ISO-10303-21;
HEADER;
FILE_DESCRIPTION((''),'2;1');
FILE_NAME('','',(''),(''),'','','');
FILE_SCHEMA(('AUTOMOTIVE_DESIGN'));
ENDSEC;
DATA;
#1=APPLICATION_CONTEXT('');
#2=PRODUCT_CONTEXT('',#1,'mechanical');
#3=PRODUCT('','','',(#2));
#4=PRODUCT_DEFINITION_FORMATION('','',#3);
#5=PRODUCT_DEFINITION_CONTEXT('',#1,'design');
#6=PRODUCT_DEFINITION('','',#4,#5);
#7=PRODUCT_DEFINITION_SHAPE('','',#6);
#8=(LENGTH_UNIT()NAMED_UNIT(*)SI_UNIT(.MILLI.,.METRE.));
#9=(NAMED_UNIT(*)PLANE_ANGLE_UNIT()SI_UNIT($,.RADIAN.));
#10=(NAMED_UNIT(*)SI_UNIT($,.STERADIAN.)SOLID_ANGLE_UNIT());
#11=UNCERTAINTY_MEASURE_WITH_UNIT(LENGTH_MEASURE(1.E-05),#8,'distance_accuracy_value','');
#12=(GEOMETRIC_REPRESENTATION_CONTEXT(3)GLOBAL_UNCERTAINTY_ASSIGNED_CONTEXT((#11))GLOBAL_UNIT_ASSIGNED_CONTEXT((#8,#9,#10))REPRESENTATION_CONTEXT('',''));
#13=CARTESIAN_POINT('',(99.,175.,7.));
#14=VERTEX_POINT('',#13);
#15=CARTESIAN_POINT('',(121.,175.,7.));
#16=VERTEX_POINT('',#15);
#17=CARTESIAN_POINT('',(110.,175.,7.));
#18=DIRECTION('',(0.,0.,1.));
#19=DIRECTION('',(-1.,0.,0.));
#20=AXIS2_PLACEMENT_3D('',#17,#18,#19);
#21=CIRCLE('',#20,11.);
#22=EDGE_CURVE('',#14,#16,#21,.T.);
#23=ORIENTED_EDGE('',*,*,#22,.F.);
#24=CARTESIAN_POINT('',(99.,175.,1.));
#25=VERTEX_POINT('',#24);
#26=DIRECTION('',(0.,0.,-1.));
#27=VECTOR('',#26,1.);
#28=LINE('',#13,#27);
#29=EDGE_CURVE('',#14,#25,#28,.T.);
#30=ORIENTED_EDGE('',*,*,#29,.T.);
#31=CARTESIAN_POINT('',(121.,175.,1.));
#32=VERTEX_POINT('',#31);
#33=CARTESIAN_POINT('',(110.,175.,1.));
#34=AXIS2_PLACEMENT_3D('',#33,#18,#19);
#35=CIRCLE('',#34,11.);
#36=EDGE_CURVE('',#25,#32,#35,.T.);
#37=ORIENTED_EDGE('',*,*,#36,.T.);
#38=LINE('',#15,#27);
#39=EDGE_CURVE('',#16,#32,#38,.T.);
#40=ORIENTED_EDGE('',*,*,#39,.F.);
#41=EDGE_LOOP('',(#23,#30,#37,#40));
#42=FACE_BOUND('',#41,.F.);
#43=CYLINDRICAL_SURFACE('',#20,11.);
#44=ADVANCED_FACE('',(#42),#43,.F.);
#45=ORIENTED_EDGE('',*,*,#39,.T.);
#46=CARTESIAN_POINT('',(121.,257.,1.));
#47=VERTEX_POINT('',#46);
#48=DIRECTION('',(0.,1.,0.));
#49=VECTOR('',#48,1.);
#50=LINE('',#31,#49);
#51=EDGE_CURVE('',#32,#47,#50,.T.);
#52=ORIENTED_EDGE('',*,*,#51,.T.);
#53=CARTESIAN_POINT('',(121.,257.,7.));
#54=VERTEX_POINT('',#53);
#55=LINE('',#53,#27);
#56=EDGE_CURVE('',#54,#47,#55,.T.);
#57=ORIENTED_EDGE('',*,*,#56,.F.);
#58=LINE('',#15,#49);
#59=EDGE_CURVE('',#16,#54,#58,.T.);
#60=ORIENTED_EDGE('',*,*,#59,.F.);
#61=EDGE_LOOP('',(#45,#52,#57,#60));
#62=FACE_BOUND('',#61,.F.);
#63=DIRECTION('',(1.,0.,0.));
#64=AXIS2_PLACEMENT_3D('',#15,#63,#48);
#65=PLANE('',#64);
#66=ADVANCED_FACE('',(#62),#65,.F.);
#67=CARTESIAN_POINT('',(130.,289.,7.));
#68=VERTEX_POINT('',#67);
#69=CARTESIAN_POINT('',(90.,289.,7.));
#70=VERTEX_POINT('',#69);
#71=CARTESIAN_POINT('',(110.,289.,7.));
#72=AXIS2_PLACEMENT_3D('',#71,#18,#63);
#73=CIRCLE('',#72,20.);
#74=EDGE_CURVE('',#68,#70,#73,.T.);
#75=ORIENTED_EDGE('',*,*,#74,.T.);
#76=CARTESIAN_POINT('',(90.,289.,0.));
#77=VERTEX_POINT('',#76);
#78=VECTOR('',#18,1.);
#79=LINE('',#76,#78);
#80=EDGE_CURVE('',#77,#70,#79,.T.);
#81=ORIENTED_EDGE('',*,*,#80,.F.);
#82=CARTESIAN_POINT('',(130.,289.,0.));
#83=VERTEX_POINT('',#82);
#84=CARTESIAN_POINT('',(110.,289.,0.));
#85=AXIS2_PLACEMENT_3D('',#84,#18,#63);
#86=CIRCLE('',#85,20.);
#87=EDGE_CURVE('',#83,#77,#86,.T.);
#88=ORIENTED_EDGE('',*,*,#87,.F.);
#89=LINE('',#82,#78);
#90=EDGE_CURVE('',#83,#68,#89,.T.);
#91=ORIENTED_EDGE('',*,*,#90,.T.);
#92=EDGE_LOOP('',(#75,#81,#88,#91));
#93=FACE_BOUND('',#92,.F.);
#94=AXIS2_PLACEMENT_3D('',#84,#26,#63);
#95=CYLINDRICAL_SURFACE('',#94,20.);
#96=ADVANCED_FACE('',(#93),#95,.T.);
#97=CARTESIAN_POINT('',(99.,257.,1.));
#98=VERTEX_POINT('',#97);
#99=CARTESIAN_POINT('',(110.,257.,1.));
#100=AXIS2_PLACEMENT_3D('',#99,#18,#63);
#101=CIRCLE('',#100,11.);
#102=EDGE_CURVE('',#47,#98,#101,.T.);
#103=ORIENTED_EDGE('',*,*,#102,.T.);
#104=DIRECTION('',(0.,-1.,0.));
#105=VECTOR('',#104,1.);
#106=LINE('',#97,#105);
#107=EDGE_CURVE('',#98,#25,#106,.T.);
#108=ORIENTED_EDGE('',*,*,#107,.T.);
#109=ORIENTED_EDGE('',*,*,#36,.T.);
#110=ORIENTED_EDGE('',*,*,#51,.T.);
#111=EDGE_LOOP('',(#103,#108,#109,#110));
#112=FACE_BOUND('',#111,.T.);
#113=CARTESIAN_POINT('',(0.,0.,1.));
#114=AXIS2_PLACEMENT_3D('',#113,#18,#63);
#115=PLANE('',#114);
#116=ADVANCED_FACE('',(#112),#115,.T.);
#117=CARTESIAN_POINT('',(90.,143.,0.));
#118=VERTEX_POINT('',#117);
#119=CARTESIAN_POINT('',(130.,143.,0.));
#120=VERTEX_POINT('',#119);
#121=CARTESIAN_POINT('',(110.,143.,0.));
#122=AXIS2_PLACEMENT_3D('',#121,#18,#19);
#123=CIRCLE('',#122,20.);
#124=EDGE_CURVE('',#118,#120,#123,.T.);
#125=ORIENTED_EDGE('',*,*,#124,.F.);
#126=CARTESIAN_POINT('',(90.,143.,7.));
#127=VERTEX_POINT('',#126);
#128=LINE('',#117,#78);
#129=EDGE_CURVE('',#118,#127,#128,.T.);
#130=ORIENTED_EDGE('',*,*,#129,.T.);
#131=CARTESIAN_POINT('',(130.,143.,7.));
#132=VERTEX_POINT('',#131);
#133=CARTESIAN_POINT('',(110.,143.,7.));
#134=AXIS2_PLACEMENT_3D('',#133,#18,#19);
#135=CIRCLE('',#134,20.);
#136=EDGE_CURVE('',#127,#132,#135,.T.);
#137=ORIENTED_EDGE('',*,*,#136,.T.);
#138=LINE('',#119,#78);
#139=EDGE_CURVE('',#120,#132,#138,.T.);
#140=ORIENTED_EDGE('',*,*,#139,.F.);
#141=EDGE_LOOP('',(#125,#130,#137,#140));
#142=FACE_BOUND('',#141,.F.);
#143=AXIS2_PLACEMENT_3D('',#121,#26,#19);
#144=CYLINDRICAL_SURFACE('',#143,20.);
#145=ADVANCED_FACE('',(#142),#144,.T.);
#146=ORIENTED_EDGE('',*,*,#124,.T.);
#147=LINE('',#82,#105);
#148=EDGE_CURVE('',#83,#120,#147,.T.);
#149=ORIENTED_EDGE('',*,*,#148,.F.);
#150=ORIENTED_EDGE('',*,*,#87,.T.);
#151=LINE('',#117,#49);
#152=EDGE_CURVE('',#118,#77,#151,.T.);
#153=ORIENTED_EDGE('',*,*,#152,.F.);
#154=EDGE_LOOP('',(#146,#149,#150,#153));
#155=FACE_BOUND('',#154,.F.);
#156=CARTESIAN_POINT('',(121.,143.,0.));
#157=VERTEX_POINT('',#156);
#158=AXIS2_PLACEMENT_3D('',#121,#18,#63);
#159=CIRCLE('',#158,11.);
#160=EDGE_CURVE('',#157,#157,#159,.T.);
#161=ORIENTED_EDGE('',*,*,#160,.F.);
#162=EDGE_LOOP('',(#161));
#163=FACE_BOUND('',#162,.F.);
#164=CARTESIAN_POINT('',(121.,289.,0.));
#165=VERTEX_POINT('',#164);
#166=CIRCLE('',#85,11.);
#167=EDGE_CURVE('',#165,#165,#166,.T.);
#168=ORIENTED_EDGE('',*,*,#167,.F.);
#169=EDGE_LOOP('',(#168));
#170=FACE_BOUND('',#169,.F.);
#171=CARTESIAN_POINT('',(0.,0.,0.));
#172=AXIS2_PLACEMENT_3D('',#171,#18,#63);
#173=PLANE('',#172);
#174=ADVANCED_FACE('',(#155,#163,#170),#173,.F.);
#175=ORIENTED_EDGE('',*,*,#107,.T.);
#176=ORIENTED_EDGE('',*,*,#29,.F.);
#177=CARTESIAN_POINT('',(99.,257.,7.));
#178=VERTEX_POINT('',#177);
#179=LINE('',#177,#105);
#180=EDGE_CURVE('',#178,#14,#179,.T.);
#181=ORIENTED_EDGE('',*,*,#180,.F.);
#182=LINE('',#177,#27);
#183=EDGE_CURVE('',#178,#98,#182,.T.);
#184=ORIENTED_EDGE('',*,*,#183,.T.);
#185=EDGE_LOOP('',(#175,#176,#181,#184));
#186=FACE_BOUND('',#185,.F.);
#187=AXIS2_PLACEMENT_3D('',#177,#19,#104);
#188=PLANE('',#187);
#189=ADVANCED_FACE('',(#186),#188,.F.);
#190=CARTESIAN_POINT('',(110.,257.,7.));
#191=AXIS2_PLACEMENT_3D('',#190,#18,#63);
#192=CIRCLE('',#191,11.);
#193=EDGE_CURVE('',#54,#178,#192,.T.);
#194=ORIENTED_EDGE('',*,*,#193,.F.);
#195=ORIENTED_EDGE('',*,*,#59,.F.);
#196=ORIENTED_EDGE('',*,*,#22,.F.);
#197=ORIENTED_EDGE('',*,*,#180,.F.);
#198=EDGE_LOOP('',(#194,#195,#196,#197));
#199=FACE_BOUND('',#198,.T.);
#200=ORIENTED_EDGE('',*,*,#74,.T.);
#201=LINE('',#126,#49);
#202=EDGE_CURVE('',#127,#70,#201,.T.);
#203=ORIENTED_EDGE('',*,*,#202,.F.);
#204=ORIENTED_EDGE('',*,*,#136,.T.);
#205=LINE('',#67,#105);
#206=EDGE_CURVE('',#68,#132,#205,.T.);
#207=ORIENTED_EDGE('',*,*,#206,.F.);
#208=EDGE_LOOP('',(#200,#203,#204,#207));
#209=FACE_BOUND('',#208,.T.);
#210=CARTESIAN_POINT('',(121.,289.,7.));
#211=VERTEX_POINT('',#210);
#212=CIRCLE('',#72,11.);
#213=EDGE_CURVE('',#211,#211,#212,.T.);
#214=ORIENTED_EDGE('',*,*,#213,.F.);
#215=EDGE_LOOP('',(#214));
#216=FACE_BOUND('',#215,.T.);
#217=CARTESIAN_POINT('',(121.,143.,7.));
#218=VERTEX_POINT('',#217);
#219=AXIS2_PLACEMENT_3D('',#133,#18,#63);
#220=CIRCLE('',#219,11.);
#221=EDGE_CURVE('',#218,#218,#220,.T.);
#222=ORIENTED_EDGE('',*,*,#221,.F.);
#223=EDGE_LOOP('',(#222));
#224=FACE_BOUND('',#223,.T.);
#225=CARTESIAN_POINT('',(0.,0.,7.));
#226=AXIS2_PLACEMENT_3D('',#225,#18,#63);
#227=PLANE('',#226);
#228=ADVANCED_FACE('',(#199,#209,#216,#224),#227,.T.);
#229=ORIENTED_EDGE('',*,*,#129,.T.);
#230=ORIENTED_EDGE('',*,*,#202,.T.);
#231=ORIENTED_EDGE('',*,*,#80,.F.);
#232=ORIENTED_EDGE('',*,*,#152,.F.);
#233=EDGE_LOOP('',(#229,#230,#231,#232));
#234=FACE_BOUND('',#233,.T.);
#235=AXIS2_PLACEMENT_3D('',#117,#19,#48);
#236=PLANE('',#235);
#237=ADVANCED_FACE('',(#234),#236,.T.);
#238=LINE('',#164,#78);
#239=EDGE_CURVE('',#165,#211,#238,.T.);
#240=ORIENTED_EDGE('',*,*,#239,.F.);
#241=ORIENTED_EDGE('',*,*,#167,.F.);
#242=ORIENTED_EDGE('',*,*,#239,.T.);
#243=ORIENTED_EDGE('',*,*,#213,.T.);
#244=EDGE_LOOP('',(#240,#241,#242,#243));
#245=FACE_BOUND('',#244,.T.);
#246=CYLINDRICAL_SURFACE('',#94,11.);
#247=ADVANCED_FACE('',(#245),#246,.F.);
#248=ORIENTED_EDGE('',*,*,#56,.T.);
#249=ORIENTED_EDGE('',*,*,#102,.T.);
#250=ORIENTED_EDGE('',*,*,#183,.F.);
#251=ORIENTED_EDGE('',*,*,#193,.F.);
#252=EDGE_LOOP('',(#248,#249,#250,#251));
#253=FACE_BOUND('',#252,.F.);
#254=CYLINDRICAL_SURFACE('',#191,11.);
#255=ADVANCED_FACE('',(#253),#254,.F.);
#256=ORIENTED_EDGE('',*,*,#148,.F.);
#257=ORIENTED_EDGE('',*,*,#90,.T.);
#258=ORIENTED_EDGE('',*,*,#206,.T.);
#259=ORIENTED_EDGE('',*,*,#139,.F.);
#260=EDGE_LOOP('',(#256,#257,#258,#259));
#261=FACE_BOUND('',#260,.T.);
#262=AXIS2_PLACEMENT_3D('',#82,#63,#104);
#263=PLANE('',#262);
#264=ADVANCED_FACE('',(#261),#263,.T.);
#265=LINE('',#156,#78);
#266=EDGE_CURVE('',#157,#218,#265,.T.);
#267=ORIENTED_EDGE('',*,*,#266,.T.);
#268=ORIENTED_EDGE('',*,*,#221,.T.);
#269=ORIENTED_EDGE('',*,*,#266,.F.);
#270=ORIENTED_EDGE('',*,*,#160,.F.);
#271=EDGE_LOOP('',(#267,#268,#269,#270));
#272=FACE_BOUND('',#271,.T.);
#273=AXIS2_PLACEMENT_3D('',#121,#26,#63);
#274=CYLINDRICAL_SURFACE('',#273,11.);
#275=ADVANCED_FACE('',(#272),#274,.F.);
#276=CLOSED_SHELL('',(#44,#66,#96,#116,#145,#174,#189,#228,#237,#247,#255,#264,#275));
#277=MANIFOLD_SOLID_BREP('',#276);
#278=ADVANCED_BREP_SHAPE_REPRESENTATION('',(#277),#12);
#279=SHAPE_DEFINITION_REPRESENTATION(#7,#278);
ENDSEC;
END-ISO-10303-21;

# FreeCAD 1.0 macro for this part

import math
import FreeCAD as App
import Part
import Sketcher
from FreeCAD import Vector

doc = App.newDocument("Part")
params = doc.addObject("Spreadsheet::Sheet", "Params")
for row, (alias, value) in enumerate([
    ("sketch1_diameter", "22 mm"),
    ("sketch1_radius", "20 mm"),
    ("sketch1_height", "146 mm"),
    ("pad1_length", "7 mm"),
    ("sketch2_diameter", "22 mm"),
    ("sketch2_height", "82 mm"),
    ("pocket1_length", "6 mm"),
], start=1):
    params.set(f"A{row}", alias)
    params.set(f"B{row}", "=" + value)
    params.setAlias(f"B{row}", alias)

body = doc.addObject("PartDesign::Body", "Body")

sketch1 = body.newObject("Sketcher::SketchObject", "Sketch")
sketch1.AttachmentSupport = (doc.getObject("XY_Plane"), [""])
sketch1.MapMode = "FlatFace"
sketch1.addGeometry(Part.LineSegment(Vector(130, 143, 0), Vector(130, 289, 0)), False)
sketch1.addGeometry(Part.ArcOfCircle(Part.Circle(Vector(110, 289, 0), Vector(0, 0, 1), 20), math.radians(0), math.radians(180)), False)
sketch1.addGeometry(Part.LineSegment(Vector(90, 289, 0), Vector(90, 143, 0)), False)
sketch1.addGeometry(Part.ArcOfCircle(Part.Circle(Vector(110, 143, 0), Vector(0, 0, 1), 20), math.radians(180), math.radians(360)), False)
sketch1.addGeometry(Part.Circle(Vector(110, 143, 0), Vector(0, 0, 1), 11), False)
sketch1.addGeometry(Part.Circle(Vector(110, 289, 0), Vector(0, 0, 1), 11), False)
sketch1.addConstraint(Sketcher.Constraint("Tangent", 0, 2, 1, 1))
sketch1.addConstraint(Sketcher.Constraint("Tangent", 1, 2, 2, 1))
sketch1.addConstraint(Sketcher.Constraint("Tangent", 2, 2, 3, 1))
sketch1.addConstraint(Sketcher.Constraint("Tangent", 3, 2, 0, 1))
sketch1.addConstraint(Sketcher.Constraint("Vertical", 0))
sketch1.addConstraint(Sketcher.Constraint("Vertical", 2))
sketch1.addConstraint(Sketcher.Constraint("Coincident", 4, 3, 3, 3))
sketch1.addConstraint(Sketcher.Constraint("Coincident", 5, 3, 1, 3))
sketch1.addConstraint(Sketcher.Constraint("Equal", 4, 5))
sketch1.addConstraint(Sketcher.Constraint("Diameter", 4, 22.0))
sketch1.addConstraint(Sketcher.Constraint("Radius", 1, 20.0))
sketch1.addConstraint(Sketcher.Constraint("DistanceY", 0, 1, 0, 2, 146.0))
sketch1.addConstraint(Sketcher.Constraint("DistanceX", -1, 1, 1, 3, 110.0))
sketch1.addConstraint(Sketcher.Constraint("DistanceY", -1, 1, 1, 3, 289.0))
sketch1.setExpression("Constraints[9]", "Params.sketch1_diameter")
sketch1.setExpression("Constraints[10]", "Params.sketch1_radius")
sketch1.setExpression("Constraints[11]", "Params.sketch1_height")
pad1 = body.newObject("PartDesign::Pad", "Pad")
pad1.Profile = sketch1
pad1.setExpression("Length", "Params.pad1_length")

sketch2 = body.newObject("Sketcher::SketchObject", "Sketch001")
sketch2.AttachmentSupport = (doc.getObject("XY_Plane"), [""])
sketch2.MapMode = "FlatFace"
sketch2.AttachmentOffset = App.Placement(Vector(0, 0, 7), App.Rotation())
sketch2.addGeometry(Part.ArcOfCircle(Part.Circle(Vector(110, 175, 0), Vector(0, 0, 1), 11), math.radians(180), math.radians(360)), False)
sketch2.addGeometry(Part.LineSegment(Vector(121, 175, 0), Vector(121, 257, 0)), False)
sketch2.addGeometry(Part.ArcOfCircle(Part.Circle(Vector(110, 257, 0), Vector(0, 0, 1), 11), math.radians(0), math.radians(180)), False)
sketch2.addGeometry(Part.LineSegment(Vector(99, 257, 0), Vector(99, 175, 0)), False)
sketch2.addGeometry(Part.Circle(Vector(110, 289, 0), Vector(0, 0, 1), 11), False)
sketch2.addGeometry(Part.Circle(Vector(110, 143, 0), Vector(0, 0, 1), 11), False)
sketch2.addConstraint(Sketcher.Constraint("Tangent", 0, 2, 1, 1))
sketch2.addConstraint(Sketcher.Constraint("Tangent", 1, 2, 2, 1))
sketch2.addConstraint(Sketcher.Constraint("Tangent", 2, 2, 3, 1))
sketch2.addConstraint(Sketcher.Constraint("Tangent", 3, 2, 0, 1))
sketch2.addConstraint(Sketcher.Constraint("Vertical", 1))
sketch2.addConstraint(Sketcher.Constraint("Vertical", 3))
sketch2.addConstraint(Sketcher.Constraint("Equal", 2, 4))
sketch2.addConstraint(Sketcher.Constraint("Equal", 4, 5))
sketch2.addConstraint(Sketcher.Constraint("Vertical", 2, 3, 4, 3))
sketch2.addConstraint(Sketcher.Constraint("Vertical", 4, 3, 5, 3))
sketch2.addConstraint(Sketcher.Constraint("Diameter", 4, 22.0))
sketch2.addConstraint(Sketcher.Constraint("DistanceY", 1, 1, 1, 2, 82.0))
sketch2.addConstraint(Sketcher.Constraint("DistanceX", -1, 1, 0, 3, 110.0))
sketch2.addConstraint(Sketcher.Constraint("DistanceY", -1, 1, 0, 3, 175.0))
sketch2.addConstraint(Sketcher.Constraint("DistanceY", -1, 1, 4, 3, 289.0))
sketch2.addConstraint(Sketcher.Constraint("DistanceY", -1, 1, 5, 3, 143.0))
sketch2.setExpression("Constraints[10]", "Params.sketch2_diameter")
sketch2.setExpression("Constraints[11]", "Params.sketch2_height")
pocket1 = body.newObject("PartDesign::Pocket", "Pocket")
pocket1.Profile = sketch2
pocket1.setExpression("Length", "Params.pocket1_length")

doc.recompute()
